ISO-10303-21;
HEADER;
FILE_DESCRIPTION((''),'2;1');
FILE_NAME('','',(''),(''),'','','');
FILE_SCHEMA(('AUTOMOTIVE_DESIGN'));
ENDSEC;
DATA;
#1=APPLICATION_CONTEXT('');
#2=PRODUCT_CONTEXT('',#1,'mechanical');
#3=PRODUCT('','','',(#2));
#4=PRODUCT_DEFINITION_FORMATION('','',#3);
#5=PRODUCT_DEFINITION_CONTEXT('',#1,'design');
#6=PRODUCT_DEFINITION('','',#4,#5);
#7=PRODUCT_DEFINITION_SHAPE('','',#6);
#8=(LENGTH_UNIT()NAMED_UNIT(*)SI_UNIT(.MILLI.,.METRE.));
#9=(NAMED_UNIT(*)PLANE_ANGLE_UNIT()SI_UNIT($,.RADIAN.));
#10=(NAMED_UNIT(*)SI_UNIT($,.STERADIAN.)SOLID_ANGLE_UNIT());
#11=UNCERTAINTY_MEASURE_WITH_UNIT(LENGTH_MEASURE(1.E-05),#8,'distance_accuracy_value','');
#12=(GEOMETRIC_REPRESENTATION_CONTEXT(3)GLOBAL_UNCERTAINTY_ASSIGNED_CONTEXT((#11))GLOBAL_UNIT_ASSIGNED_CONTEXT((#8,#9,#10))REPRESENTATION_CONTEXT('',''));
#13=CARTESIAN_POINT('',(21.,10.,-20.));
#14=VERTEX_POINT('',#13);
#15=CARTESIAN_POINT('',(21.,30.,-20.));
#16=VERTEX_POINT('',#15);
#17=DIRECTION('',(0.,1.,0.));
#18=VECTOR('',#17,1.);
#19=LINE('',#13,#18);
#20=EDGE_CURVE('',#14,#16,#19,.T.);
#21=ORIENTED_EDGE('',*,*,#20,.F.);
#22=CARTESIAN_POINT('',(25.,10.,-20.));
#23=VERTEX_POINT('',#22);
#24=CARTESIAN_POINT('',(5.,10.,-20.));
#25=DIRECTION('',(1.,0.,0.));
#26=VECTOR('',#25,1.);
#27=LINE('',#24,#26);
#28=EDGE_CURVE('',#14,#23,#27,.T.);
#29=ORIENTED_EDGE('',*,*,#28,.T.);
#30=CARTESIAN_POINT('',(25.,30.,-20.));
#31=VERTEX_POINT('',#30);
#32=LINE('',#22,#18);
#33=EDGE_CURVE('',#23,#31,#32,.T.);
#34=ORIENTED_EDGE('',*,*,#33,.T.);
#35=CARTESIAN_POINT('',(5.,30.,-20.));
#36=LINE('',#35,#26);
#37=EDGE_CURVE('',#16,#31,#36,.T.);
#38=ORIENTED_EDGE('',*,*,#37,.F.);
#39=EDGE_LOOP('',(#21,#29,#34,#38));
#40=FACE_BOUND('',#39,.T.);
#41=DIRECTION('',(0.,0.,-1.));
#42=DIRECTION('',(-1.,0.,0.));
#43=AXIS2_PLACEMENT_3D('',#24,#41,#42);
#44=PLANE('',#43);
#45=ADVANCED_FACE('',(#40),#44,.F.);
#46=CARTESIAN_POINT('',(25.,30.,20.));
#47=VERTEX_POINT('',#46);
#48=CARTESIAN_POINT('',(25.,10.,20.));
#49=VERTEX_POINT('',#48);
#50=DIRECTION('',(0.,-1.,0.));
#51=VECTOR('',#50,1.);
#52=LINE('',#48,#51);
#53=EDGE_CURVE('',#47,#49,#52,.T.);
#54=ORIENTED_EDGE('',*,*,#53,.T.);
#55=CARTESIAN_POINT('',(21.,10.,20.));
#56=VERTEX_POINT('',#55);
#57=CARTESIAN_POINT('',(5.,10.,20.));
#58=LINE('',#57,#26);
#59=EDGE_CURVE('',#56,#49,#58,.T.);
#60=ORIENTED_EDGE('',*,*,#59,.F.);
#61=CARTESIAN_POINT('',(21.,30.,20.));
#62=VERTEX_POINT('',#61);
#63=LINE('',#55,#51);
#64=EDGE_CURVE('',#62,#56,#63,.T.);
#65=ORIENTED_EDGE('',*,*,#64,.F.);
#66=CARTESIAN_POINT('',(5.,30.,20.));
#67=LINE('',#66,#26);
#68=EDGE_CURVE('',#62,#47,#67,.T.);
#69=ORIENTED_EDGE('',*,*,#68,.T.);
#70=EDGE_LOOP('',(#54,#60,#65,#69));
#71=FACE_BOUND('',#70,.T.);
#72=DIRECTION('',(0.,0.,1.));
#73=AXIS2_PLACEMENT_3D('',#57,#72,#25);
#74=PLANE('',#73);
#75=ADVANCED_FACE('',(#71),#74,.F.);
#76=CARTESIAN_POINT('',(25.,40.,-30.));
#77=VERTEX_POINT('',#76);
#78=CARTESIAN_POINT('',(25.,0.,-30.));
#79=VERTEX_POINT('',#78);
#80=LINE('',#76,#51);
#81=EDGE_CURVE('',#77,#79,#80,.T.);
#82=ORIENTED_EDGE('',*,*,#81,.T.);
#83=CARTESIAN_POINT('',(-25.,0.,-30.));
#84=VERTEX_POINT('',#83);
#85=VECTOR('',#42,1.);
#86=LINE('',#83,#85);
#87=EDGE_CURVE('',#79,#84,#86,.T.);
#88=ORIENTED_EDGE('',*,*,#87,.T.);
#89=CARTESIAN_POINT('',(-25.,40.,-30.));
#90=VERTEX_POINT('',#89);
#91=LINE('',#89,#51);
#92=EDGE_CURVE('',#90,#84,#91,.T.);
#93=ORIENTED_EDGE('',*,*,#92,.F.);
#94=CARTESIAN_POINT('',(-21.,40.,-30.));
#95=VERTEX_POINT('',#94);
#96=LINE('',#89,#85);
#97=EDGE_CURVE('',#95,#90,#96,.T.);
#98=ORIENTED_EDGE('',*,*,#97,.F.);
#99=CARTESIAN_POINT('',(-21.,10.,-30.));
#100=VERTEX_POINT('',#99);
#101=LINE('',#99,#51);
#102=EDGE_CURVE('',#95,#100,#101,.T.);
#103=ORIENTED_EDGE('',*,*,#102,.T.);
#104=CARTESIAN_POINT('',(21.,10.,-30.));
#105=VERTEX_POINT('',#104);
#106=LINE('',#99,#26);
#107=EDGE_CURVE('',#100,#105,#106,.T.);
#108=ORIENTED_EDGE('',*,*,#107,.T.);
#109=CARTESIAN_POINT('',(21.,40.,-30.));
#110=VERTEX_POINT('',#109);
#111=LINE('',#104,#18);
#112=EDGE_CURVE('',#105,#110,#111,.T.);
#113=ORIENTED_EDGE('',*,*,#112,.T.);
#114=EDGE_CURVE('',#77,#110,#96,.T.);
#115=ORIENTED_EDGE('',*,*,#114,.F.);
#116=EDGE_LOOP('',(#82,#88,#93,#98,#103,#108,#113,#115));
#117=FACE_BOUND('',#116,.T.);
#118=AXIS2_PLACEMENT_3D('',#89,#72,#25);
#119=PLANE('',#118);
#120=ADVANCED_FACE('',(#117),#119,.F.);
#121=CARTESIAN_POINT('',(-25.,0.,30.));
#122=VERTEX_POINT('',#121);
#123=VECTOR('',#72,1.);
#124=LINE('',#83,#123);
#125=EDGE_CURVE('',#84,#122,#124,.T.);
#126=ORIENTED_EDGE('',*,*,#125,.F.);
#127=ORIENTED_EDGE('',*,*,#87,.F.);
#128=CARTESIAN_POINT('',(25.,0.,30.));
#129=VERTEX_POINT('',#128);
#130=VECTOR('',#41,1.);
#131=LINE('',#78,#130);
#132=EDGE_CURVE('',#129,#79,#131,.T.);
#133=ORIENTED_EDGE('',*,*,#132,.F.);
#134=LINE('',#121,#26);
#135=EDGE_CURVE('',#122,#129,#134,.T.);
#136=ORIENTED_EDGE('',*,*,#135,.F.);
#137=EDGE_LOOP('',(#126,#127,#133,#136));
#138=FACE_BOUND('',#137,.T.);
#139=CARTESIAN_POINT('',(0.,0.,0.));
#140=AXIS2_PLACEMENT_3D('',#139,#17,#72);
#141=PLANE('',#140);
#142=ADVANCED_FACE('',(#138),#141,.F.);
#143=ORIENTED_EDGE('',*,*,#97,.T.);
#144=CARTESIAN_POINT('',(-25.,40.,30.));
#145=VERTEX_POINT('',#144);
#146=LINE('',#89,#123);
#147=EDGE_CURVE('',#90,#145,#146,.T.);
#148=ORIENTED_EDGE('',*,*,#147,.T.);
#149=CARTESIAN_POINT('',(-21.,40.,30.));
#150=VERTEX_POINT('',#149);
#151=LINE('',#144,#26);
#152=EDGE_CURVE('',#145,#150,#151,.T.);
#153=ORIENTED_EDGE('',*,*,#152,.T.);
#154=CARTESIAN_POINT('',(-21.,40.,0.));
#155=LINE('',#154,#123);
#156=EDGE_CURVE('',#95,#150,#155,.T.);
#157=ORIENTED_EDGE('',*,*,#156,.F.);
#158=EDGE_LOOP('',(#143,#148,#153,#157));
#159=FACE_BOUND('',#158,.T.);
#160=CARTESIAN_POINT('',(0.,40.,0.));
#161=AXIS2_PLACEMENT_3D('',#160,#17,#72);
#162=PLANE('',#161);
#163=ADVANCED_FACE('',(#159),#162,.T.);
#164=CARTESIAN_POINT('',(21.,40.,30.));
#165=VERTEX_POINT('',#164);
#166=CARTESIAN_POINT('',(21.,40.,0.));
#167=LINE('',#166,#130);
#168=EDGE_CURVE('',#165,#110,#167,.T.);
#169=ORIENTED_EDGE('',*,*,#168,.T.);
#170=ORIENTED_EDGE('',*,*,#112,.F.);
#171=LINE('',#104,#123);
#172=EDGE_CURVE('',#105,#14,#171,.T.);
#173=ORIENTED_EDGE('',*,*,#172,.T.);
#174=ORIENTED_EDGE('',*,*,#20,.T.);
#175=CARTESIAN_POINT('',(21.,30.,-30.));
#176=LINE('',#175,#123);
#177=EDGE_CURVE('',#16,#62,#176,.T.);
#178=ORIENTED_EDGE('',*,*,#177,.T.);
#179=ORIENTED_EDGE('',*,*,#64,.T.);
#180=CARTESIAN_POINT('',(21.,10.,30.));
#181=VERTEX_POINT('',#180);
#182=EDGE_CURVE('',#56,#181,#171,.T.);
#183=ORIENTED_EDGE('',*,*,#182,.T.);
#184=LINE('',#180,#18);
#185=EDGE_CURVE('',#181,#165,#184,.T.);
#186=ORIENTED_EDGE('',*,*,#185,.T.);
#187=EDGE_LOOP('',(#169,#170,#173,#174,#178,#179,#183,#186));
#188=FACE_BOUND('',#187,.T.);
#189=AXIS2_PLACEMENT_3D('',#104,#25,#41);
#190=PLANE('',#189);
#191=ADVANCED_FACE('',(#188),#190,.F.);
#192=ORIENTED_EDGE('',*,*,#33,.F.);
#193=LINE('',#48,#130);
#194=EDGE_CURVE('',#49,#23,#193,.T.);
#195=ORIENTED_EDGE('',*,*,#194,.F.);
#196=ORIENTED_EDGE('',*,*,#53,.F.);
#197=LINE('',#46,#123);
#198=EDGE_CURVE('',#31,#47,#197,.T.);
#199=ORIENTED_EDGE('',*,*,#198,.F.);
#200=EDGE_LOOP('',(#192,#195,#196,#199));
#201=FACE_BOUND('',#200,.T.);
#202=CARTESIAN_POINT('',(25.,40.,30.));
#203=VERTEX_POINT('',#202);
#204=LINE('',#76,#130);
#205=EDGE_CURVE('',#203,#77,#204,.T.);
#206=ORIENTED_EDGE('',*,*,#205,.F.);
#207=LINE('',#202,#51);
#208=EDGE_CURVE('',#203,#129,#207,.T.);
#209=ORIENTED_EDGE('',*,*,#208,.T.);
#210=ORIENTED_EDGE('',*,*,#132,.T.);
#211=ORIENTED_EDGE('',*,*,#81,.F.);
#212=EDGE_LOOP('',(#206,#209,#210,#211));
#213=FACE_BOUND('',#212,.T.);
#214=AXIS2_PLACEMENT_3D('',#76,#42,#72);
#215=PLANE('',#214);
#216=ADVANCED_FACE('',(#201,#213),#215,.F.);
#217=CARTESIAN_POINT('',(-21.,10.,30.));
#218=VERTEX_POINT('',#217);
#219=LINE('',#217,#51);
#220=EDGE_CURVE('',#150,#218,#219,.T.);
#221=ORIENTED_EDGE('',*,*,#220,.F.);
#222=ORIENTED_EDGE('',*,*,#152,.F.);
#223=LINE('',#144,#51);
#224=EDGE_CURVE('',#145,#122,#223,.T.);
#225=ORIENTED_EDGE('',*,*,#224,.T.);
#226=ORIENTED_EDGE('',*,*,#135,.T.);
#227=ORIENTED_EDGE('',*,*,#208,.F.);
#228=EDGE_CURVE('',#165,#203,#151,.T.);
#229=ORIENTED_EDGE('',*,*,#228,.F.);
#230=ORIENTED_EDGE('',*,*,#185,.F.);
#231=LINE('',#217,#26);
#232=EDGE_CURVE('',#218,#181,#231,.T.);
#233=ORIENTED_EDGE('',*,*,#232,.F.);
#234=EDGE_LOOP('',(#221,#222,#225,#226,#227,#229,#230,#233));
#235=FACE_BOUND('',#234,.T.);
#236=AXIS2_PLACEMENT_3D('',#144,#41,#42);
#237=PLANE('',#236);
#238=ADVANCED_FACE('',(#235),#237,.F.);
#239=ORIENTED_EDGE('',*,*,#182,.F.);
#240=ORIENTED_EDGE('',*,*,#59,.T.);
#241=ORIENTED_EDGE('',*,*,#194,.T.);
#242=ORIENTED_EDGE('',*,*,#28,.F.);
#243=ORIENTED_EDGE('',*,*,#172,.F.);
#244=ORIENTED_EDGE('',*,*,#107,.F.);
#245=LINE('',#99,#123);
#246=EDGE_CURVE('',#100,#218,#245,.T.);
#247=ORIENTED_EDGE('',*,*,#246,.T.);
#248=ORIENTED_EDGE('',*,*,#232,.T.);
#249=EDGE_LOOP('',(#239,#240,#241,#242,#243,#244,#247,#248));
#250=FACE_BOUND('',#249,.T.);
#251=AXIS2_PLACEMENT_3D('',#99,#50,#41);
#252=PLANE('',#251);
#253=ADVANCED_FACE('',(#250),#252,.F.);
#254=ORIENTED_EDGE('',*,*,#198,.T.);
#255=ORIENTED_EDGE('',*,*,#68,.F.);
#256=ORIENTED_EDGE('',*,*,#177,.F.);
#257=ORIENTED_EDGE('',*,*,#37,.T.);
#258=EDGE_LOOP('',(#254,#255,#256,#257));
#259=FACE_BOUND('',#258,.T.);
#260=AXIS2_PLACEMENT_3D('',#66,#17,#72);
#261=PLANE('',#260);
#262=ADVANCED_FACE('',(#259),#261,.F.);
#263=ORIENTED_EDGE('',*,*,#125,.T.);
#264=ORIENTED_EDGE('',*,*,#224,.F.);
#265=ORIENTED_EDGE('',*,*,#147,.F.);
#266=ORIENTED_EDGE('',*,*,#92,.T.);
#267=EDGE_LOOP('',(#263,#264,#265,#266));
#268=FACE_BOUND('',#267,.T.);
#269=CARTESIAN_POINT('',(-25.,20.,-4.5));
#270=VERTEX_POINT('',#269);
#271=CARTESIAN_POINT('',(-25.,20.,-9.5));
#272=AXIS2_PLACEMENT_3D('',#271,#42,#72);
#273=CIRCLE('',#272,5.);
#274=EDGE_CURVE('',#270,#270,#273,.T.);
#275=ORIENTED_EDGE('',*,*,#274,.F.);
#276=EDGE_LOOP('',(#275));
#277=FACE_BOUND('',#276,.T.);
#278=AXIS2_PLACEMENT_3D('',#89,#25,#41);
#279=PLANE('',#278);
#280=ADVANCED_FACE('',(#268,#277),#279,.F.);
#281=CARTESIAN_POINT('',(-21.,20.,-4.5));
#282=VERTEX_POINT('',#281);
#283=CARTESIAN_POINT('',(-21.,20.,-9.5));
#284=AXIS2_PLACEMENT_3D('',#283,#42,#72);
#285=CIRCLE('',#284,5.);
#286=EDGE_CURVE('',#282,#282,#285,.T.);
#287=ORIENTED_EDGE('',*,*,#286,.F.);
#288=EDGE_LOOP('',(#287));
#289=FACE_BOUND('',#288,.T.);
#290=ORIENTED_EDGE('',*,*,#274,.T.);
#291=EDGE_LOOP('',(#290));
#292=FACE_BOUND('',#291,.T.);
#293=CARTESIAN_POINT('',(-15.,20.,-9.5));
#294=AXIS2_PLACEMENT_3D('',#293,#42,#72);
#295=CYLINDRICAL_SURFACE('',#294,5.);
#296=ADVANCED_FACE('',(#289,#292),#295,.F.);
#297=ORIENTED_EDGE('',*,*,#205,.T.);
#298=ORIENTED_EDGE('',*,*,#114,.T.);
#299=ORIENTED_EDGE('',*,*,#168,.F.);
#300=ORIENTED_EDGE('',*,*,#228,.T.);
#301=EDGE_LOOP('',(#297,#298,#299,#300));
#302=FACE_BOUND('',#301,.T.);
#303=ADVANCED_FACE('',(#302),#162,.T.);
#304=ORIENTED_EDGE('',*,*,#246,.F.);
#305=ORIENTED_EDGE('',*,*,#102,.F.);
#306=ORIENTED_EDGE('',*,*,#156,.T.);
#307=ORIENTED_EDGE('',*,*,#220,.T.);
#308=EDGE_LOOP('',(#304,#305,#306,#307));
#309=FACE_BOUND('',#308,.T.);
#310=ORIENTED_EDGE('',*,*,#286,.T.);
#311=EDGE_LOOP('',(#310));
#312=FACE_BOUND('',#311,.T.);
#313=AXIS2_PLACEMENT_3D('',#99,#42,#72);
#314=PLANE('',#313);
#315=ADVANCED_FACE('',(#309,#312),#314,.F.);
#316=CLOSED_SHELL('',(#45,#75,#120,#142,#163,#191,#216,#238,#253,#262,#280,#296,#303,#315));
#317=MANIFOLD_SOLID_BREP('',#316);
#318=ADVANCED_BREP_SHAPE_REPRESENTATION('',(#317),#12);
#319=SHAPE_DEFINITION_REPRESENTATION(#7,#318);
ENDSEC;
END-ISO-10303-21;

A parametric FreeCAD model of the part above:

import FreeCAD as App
import Part
import Sketcher

V = App.Vector

doc = App.newDocument("Part")
body = doc.addObject("PartDesign::Body", "Body")

# Sketch on XZ plane
sketch1 = body.newObject("Sketcher::SketchObject", "Sketch")
sketch1.AttachmentSupport = (doc.getObject("XZ_Plane"), [""])
sketch1.MapMode = "FlatFace"
sketch1.addGeometry([
    Part.LineSegment(V(-25, -30, 0), V(-25, 30, 0)),
    Part.LineSegment(V(-25, 30, 0), V(25, 30, 0)),
    Part.LineSegment(V(25, 30, 0), V(25, -30, 0)),
    Part.LineSegment(V(25, -30, 0), V(-25, -30, 0)),
], False)
sketch1.addConstraint([
    Sketcher.Constraint("Coincident", 0, 2, 1, 1),
    Sketcher.Constraint("Coincident", 1, 2, 2, 1),
    Sketcher.Constraint("Coincident", 2, 2, 3, 1),
    Sketcher.Constraint("Coincident", 3, 2, 0, 1),
    Sketcher.Constraint("Vertical", 0),
    Sketcher.Constraint("Horizontal", 1),
    Sketcher.Constraint("Vertical", 2),
    Sketcher.Constraint("Horizontal", 3),
    Sketcher.Constraint("Symmetric", 0, 2, 2, 2, -1, 1),
    Sketcher.Constraint("DistanceX", 1, 1, 1, 2, 50.0),
    Sketcher.Constraint("DistanceY", 0, 1, 0, 2, 60.0),
])
pad1 = body.newObject("PartDesign::Pad", "Pad")
pad1.Profile = sketch1
pad1.Length = 40
pad1.Reversed = True

# Sketch on XY plane
sketch2 = body.newObject("Sketcher::SketchObject", "Sketch001")
sketch2.AttachmentSupport = (doc.getObject("XY_Plane"), [""])
sketch2.MapMode = "FlatFace"
sketch2.AttachmentOffset = App.Placement(V(0, 0, 30), App.Rotation())
sketch2.addGeometry([
    Part.LineSegment(V(-21, 66.420846, 0), V(-21, 10, 0)),
    Part.LineSegment(V(-21, 10, 0), V(21, 10, 0)),
    Part.LineSegment(V(21, 10, 0), V(21, 66.420846, 0)),
    Part.LineSegment(V(21, 66.420846, 0), V(-21, 66.420846, 0)),
], False)
sketch2.addConstraint([
    Sketcher.Constraint("Coincident", 0, 2, 1, 1),
    Sketcher.Constraint("Coincident", 1, 2, 2, 1),
    Sketcher.Constraint("Coincident", 2, 2, 3, 1),
    Sketcher.Constraint("Coincident", 3, 2, 0, 1),
    Sketcher.Constraint("Vertical", 0),
    Sketcher.Constraint("Horizontal", 1),
    Sketcher.Constraint("Vertical", 2),
    Sketcher.Constraint("Horizontal", 3),
    Sketcher.Constraint("DistanceX", 1, 1, 1, 2, 42.0),
    Sketcher.Constraint("DistanceX", 0, 2, -1, 1, 21.0),
    Sketcher.Constraint("DistanceY", -1, 1, 0, 2, 10.0),
    Sketcher.Constraint("DistanceY", 0, 2, 0, 1, 56.420846),
])
pocket1 = body.newObject("PartDesign::Pocket", "Pocket")
pocket1.Profile = sketch2
pocket1.Length = 60

# Sketch on YZ plane
sketch3 = body.newObject("Sketcher::SketchObject", "Sketch002")
sketch3.AttachmentSupport = (doc.getObject("YZ_Plane"), [""])
sketch3.MapMode = "FlatFace"
sketch3.AttachmentOffset = App.Placement(V(0, 0, 25), App.Rotation())
sketch3.addGeometry([
    Part.LineSegment(V(30, 20, 0), V(10, 20, 0)),
    Part.LineSegment(V(10, 20, 0), V(10, -20, 0)),
    Part.LineSegment(V(10, -20, 0), V(30, -20, 0)),
    Part.LineSegment(V(30, -20, 0), V(30, 20, 0)),
], False)
sketch3.addConstraint([
    Sketcher.Constraint("Coincident", 0, 2, 1, 1),
    Sketcher.Constraint("Coincident", 1, 2, 2, 1),
    Sketcher.Constraint("Coincident", 2, 2, 3, 1),
    Sketcher.Constraint("Coincident", 3, 2, 0, 1),
    Sketcher.Constraint("Horizontal", 0),
    Sketcher.Constraint("Vertical", 1),
    Sketcher.Constraint("Horizontal", 2),
    Sketcher.Constraint("Vertical", 3),
    Sketcher.Constraint("DistanceX", 0, 2, 0, 1, 20.0),
    Sketcher.Constraint("DistanceY", 1, 2, 1, 1, 40.0),
    Sketcher.Constraint("DistanceX", -1, 1, 0, 2, 10.0),
    Sketcher.Constraint("DistanceY", -1, 1, 0, 2, 20.0),
])
pocket2 = body.newObject("PartDesign::Pocket", "Pocket001")
pocket2.Profile = sketch3
pocket2.Length = 20

# Sketch on YZ plane
sketch4 = body.newObject("Sketcher::SketchObject", "Sketch003")
sketch4.AttachmentSupport = (doc.getObject("YZ_Plane"), [""])
sketch4.MapMode = "FlatFace"
sketch4.AttachmentOffset = App.Placement(V(0, 0, -25), App.Rotation())
sketch4.addGeometry(Part.Circle(V(20, -9.5, 0), V(0, 0, 1), 5), False)
sketch4.addConstraint([
    Sketcher.Constraint("Diameter", 0, 10.0),
    Sketcher.Constraint("DistanceX", -1, 1, 0, 3, 20.0),
    Sketcher.Constraint("DistanceY", 0, 3, -1, 1, 9.5),
])
pocket3 = body.newObject("PartDesign::Pocket", "Pocket002")
pocket3.Profile = sketch4
pocket3.Length = 10
pocket3.Reversed = True

doc.recompute()
